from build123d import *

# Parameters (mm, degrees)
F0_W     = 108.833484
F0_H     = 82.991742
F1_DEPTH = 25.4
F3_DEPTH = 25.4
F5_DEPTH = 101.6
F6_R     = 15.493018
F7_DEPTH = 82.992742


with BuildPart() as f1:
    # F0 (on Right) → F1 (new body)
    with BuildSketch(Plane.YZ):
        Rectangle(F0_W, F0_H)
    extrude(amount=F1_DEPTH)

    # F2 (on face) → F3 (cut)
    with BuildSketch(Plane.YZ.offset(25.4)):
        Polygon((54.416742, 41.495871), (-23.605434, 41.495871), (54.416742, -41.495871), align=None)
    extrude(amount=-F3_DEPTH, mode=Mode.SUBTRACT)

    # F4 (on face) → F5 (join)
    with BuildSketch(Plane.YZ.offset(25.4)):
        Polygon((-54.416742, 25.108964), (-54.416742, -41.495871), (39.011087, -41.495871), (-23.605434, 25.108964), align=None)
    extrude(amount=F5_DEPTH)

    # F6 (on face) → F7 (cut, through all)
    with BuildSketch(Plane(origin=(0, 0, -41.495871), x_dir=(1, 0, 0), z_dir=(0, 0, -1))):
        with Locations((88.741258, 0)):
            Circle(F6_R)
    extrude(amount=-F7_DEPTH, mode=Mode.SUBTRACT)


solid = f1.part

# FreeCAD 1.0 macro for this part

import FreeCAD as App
import Part
import Sketcher
from FreeCAD import Vector
Q = App.Units.Quantity

doc = App.newDocument("Part")
body = doc.addObject("PartDesign::Body", "Body")

sketch1 = body.newObject("Sketcher::SketchObject", "Sketch")
sketch1.AttachmentSupport = (doc.getObject("YZ_Plane"), [""])
sketch1.MapMode = "FlatFace"
sketch1.addGeometry([
    Part.LineSegment(Vector(-54, 41, 0), Vector(-54, -41, 0)),
    Part.LineSegment(Vector(-54, -41, 0), Vector(54, -41, 0)),
    Part.LineSegment(Vector(54, -41, 0), Vector(54, 41, 0)),
    Part.LineSegment(Vector(54, 41, 0), Vector(-54, 41, 0)),
], False)
sketch1.addConstraint([
    Sketcher.Constraint("Coincident", 0, 2, 1, 1),
    Sketcher.Constraint("Coincident", 1, 2, 2, 1),
    Sketcher.Constraint("Coincident", 2, 2, 3, 1),
    Sketcher.Constraint("Coincident", 3, 2, 0, 1),
    Sketcher.Constraint("Vertical", 0),
    Sketcher.Constraint("Horizontal", 1),
    Sketcher.Constraint("Vertical", 2),
    Sketcher.Constraint("Horizontal", 3),
    Sketcher.Constraint("Symmetric", 0, 2, 2, 2, -1, 1),
    Sketcher.Constraint("DistanceX", 1, 1, 1, 2, Q("108.833484 mm")),
    Sketcher.Constraint("DistanceY", 0, 2, 0, 1, Q("82.991742 mm")),
])
pad1 = body.newObject("PartDesign::Pad", "Pad")
pad1.Profile = sketch1
pad1.Length = Q("1 in")

sketch2 = body.newObject("Sketcher::SketchObject", "Sketch001")
sketch2.AttachmentSupport = (doc.getObject("YZ_Plane"), [""])
sketch2.MapMode = "FlatFace"
sketch2.AttachmentOffset = App.Placement(Vector(0, 0, 1 * 25.4), App.Rotation())
sketch2.addGeometry([
    Part.LineSegment(Vector(54, 41, 0), Vector(-24, 41, 0)),
    Part.LineSegment(Vector(-24, 41, 0), Vector(54, -41, 0)),
    Part.LineSegment(Vector(54, -41, 0), Vector(54, 41, 0)),
], False)
sketch2.addConstraint([
    Sketcher.Constraint("Coincident", 0, 2, 1, 1),
    Sketcher.Constraint("Coincident", 1, 2, 2, 1),
    Sketcher.Constraint("Coincident", 2, 2, 0, 1),
    Sketcher.Constraint("Horizontal", 0),
    Sketcher.Constraint("Vertical", 2),
    Sketcher.Constraint("Distance", 1, Q("113.908249 mm")),
    Sketcher.Constraint("DistanceX", 0, 2, 0, 1, Q("78.022176 mm")),
    Sketcher.Constraint("DistanceY", -1, 1, 0, 2, Q("41.495871 mm")),
    Sketcher.Constraint("DistanceX", 0, 2, -1, 1, Q("23.605434 mm")),
])
pocket1 = body.newObject("PartDesign::Pocket", "Pocket")
pocket1.Profile = sketch2
pocket1.Length = Q("1 in")

sketch3 = body.newObject("Sketcher::SketchObject", "Sketch002")
sketch3.AttachmentSupport = (doc.getObject("YZ_Plane"), [""])
sketch3.MapMode = "FlatFace"
sketch3.AttachmentOffset = App.Placement(Vector(0, 0, 1 * 25.4), App.Rotation())
sketch3.addGeometry([
    Part.LineSegment(Vector(-54, 25, 0), Vector(-54, -41, 0)),
    Part.LineSegment(Vector(-54, -41, 0), Vector(39, -41, 0)),
    Part.LineSegment(Vector(39, -41, 0), Vector(-24, 25, 0)),
    Part.LineSegment(Vector(-24, 25, 0), Vector(-54, 25, 0)),
], False)
sketch3.addConstraint([
    Sketcher.Constraint("Coincident", 0, 2, 1, 1),
    Sketcher.Constraint("Coincident", 1, 2, 2, 1),
    Sketcher.Constraint("Coincident", 2, 2, 3, 1),
    Sketcher.Constraint("Coincident", 3, 2, 0, 1),
    Sketcher.Constraint("Vertical", 0),
    Sketcher.Constraint("Horizontal", 1),
    Sketcher.Constraint("Horizontal", 3),
    Sketcher.Constraint("DistanceX", 1, 1, 1, 2, Q("93.427829 mm")),
    Sketcher.Constraint("DistanceX", 3, 2, 3, 1, Q("30.811308 mm")),
    Sketcher.Constraint("DistanceY", 0, 2, 0, 1, Q("66.604835 mm")),
    Sketcher.Constraint("DistanceY", 0, 2, -1, 1, Q("41.495871 mm")),
    Sketcher.Constraint("DistanceX", 0, 2, -1, 1, Q("54.416742 mm")),
])
pad2 = body.newObject("PartDesign::Pad", "Pad001")
pad2.Profile = sketch3
pad2.Length = Q("4 in")

sketch4 = body.newObject("Sketcher::SketchObject", "Sketch003")
sketch4.AttachmentSupport = (doc.getObject("XY_Plane"), [""])
sketch4.MapMode = "FlatFace"
sketch4.AttachmentOffset = App.Placement(Vector(0, 0, -41.495871), App.Rotation())
sketch4.addGeometry(Part.Circle(Vector(89, 0, 0), Vector(0, 0, 1), 15), False)
sketch4.addConstraint([
    Sketcher.Constraint("PointOnObject", 0, 3, -1),
    Sketcher.Constraint("Diameter", 0, Q("30.986036 mm")),
    Sketcher.Constraint("DistanceX", -1, 1, 0, 3, Q("88.741258 mm")),
])
pocket2 = body.newObject("PartDesign::Pocket", "Pocket001")
pocket2.Profile = sketch4
pocket2.Type = "ThroughAll"
pocket2.Reversed = True

doc.recompute()
